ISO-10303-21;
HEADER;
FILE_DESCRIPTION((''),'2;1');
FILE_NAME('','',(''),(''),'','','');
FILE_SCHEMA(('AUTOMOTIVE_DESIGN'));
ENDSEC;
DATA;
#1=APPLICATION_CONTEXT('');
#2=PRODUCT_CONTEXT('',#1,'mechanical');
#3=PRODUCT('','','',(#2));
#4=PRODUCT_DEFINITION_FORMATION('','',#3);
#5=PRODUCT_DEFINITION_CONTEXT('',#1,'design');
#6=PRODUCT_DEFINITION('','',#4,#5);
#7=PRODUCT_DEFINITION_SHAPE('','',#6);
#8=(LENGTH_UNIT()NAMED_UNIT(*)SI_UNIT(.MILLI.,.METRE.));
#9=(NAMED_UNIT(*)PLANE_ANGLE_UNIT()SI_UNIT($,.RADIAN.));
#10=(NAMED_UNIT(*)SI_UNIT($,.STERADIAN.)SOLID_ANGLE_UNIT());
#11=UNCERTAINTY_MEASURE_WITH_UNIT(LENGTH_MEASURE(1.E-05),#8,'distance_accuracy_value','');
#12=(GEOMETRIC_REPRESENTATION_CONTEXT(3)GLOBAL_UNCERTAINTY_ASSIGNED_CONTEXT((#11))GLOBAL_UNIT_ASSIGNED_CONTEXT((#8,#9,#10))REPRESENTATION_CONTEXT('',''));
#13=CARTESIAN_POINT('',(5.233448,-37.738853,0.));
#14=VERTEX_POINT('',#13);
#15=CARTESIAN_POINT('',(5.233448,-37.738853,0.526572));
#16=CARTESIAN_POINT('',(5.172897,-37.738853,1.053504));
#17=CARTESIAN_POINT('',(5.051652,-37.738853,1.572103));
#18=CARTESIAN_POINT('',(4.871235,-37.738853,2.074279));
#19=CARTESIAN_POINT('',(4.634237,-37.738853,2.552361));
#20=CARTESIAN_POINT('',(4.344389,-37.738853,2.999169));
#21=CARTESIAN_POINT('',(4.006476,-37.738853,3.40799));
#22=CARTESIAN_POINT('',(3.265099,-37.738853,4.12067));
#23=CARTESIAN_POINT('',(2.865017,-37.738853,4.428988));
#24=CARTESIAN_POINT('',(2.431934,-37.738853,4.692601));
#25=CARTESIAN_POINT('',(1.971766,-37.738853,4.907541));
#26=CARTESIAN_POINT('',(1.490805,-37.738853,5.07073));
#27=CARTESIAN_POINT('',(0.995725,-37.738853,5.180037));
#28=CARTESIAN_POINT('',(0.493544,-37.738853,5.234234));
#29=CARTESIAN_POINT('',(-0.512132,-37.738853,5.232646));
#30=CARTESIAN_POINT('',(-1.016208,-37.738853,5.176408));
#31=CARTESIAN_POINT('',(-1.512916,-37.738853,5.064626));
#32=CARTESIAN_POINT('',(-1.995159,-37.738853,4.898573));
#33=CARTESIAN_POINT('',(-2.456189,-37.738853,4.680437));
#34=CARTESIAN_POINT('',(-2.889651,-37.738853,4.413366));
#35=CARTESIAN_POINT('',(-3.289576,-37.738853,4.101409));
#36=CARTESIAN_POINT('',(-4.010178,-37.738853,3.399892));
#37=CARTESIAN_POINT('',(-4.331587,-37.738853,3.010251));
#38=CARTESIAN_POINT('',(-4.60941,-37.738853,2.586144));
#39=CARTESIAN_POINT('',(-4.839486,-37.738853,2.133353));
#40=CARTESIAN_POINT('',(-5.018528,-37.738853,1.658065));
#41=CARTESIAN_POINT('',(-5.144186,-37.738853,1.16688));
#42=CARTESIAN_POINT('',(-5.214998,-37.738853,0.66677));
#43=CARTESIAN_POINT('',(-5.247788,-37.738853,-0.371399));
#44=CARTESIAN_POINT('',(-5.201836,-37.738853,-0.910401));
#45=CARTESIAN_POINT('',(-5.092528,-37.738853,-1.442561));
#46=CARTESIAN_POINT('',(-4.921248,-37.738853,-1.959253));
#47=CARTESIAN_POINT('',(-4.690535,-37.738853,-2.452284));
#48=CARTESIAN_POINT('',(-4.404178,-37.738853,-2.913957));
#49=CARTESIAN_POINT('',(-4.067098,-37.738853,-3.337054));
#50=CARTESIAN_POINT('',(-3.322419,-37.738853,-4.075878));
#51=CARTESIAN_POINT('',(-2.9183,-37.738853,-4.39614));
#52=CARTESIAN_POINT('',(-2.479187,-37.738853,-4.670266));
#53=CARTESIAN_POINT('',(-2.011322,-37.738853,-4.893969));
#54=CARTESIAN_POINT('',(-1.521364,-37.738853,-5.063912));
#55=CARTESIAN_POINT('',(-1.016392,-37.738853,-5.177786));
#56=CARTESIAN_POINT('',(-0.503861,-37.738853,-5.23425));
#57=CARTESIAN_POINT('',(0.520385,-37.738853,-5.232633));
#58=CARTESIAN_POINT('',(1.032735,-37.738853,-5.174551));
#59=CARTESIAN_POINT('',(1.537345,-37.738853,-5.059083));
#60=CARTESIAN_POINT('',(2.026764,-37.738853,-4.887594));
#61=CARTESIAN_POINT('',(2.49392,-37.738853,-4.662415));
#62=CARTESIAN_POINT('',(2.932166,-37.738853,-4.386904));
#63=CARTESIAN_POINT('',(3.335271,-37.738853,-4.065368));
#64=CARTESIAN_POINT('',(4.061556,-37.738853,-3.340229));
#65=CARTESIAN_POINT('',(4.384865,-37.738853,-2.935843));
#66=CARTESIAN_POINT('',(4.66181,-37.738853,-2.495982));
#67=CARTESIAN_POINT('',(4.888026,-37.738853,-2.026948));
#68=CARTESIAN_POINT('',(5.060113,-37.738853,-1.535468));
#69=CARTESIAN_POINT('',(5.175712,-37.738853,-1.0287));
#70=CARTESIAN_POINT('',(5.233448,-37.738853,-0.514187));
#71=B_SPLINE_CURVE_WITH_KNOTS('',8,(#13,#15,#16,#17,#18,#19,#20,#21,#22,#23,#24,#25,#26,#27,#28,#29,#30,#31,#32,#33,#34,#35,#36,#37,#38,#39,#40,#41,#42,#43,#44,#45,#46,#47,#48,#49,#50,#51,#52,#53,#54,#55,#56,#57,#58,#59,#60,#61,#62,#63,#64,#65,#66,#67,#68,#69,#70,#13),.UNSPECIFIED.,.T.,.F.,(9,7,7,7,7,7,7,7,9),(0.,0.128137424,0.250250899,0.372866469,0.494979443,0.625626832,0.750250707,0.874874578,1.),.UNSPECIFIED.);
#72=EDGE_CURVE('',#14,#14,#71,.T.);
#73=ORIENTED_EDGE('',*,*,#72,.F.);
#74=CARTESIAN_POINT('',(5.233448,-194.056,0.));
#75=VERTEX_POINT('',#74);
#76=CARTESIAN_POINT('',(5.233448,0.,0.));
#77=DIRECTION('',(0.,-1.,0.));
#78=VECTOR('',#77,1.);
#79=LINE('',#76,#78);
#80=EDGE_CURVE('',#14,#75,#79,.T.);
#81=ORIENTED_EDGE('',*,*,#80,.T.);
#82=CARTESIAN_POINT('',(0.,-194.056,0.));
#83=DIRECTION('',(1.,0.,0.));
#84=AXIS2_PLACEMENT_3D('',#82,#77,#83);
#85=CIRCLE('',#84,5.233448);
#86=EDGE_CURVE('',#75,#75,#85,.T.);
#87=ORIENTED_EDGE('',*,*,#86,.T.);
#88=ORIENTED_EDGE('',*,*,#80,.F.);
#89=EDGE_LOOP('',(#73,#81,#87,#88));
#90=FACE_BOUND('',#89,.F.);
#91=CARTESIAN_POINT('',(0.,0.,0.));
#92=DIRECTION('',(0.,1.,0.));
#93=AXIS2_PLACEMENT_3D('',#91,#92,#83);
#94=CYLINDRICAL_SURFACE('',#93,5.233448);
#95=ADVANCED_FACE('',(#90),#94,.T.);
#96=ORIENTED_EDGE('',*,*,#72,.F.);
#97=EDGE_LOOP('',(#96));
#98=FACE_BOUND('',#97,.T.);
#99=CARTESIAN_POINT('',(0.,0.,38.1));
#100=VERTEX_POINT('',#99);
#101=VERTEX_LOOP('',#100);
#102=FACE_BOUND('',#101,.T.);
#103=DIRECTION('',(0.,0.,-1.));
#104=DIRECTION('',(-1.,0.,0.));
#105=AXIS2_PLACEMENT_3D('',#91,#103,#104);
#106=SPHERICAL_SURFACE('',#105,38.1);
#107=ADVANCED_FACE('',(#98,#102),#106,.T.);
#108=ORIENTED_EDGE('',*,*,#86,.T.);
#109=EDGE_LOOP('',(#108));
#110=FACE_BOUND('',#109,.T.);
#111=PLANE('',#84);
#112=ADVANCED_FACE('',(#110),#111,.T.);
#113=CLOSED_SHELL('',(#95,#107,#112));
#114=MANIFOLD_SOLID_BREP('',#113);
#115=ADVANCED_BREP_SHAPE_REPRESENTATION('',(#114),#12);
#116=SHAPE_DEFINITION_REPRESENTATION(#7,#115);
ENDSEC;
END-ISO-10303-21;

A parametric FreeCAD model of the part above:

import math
import FreeCAD as App
import Part
import Sketcher
Q = App.Units.Quantity

doc = App.newDocument("Part")
body = doc.addObject("PartDesign::Body", "Body")

# Sketch on XZ plane
sketch1 = doc.addObject("Sketcher::SketchObject", "Sketch")
body.addObject(sketch1)
sketch1.AttachmentSupport = (doc.XZ_Plane, [""])
sketch1.MapMode = "FlatFace"
sketch1.addGeometry(Part.LineSegment(App.Vector(0, -38, 0), App.Vector(0, 38, 0)), False)
sketch1.addGeometry(Part.ArcOfCircle(Part.Circle(App.Vector(0, 0, 0), App.Vector(0, 0, 1), 38), math.radians(90), math.radians(270)), False)
sketch1.addConstraint(Sketcher.Constraint("Coincident", 0, 1, 1, 2))
sketch1.addConstraint(Sketcher.Constraint("Coincident", 1, 1, 0, 2))
sketch1.addConstraint(Sketcher.Constraint("Vertical", 0))
sketch1.addConstraint(Sketcher.Constraint("Coincident", 1, 3, -1, 1))
sketch1.addConstraint(Sketcher.Constraint("PointOnObject", 0, 1, -2))
sketch1.addConstraint(Sketcher.Constraint("Radius", 1, Q("1.5 in")))
revolution = doc.addObject("PartDesign::Revolution", "Revolution")
body.addObject(revolution)
revolution.Profile = sketch1
revolution.ReferenceAxis = (sketch1, ["V_Axis"])
revolution.Angle = 360

# Sketch on XZ plane
sketch2 = doc.addObject("Sketcher::SketchObject", "Sketch001")
body.addObject(sketch2)
sketch2.AttachmentSupport = (doc.XZ_Plane, [""])
sketch2.MapMode = "FlatFace"
sketch2.addGeometry(Part.Circle(App.Vector(0, 0, 0), App.Vector(0, 0, 1), 5), False)
sketch2.addConstraint(Sketcher.Constraint("Coincident", 0, 3, -1, 1))
sketch2.addConstraint(Sketcher.Constraint("Diameter", 0, Q("10.466896 mm")))
pad1 = doc.addObject("PartDesign::Pad", "Pad")
body.addObject(pad1)
pad1.Profile = sketch2
pad1.Length = Q("7.64 in")

doc.recompute()
